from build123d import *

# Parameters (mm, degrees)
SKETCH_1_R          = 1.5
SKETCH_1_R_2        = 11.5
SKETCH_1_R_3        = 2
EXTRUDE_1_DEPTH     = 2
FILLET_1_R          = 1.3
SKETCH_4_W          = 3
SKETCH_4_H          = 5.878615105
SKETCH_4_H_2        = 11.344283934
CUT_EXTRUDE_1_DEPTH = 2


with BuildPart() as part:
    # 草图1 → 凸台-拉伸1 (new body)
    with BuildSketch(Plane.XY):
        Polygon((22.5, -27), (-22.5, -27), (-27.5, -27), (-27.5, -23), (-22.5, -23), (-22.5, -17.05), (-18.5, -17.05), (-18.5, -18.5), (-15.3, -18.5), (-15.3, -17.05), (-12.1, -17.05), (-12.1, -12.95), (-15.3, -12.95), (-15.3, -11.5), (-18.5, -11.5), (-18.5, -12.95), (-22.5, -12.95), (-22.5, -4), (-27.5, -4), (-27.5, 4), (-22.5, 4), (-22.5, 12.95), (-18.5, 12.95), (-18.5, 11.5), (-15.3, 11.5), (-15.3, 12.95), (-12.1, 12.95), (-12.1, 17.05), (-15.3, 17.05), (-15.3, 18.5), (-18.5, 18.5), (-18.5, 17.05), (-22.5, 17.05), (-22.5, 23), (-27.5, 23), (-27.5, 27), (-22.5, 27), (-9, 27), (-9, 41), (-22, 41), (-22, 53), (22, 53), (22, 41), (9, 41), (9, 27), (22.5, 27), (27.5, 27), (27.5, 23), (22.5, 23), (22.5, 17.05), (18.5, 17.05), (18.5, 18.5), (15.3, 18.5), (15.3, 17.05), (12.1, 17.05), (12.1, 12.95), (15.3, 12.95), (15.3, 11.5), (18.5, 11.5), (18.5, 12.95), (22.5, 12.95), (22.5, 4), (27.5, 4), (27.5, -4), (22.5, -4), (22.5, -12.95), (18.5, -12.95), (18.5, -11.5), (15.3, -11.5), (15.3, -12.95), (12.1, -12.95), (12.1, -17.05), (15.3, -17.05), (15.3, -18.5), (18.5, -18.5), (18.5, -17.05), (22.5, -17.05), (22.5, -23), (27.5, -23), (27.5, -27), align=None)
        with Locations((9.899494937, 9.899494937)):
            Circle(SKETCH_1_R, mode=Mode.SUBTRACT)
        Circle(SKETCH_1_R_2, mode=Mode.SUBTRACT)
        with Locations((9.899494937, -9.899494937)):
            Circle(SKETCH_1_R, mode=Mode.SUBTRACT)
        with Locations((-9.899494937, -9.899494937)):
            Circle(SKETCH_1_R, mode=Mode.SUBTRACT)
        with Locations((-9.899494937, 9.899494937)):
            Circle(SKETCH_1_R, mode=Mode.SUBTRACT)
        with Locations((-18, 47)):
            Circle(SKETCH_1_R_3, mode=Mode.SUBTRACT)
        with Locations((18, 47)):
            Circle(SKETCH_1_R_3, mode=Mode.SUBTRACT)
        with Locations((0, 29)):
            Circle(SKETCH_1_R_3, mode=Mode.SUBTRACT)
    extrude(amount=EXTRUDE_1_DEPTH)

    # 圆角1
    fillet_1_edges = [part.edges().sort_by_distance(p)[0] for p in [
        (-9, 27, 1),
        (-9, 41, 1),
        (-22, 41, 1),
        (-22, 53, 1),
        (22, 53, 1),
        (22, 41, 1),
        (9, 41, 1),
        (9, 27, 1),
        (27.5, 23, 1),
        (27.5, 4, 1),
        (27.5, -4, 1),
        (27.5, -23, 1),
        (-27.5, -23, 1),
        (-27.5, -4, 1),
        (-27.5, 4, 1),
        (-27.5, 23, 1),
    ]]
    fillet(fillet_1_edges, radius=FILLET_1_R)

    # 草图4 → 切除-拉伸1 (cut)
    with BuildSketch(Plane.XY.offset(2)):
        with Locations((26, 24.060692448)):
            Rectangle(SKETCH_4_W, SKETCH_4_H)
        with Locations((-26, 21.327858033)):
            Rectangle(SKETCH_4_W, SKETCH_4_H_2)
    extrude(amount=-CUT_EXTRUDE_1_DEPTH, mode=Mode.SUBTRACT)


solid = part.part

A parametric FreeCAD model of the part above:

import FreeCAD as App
import Part
import Sketcher
Q = App.Units.Quantity


def edges_at(feature, points):
    """Names of the edges that pass closest to the given points."""
    edges = feature.Shape.Edges
    near = lambda p: min(range(len(edges)), key=lambda i: edges[i].distToShape(Part.Vertex(*p))[0])
    return sorted({f"Edge{near(p) + 1}" for p in points})

doc = App.newDocument("Part")
body = doc.addObject("PartDesign::Body", "Body")

# Sketch on XY plane
sketch1 = body.newObject("Sketcher::SketchObject", "Sketch")
sketch1.AttachmentSupport = (doc.getObject("XY_Plane"), [""])
sketch1.MapMode = "FlatFace"
sketch1.addGeometry([
    Part.LineSegment(App.Vector(-27.5, -27, 0), App.Vector(27.5, -27, 0)),  # 0
    Part.LineSegment(App.Vector(27.5, -27, 0), App.Vector(27.5, -23, 0)),  # 1
    Part.LineSegment(App.Vector(27.5, -23, 0), App.Vector(22.5, -23, 0)),  # 2
    Part.LineSegment(App.Vector(22.5, -23, 0), App.Vector(22.5, -17.05, 0)),  # 3
    Part.LineSegment(App.Vector(22.5, -17.05, 0), App.Vector(18.5, -17.05, 0)),  # 4
    Part.LineSegment(App.Vector(18.5, -17.05, 0), App.Vector(18.5, -18.5, 0)),  # 5
    Part.LineSegment(App.Vector(18.5, -18.5, 0), App.Vector(15.3, -18.5, 0)),  # 6
    Part.LineSegment(App.Vector(15.3, -18.5, 0), App.Vector(15.3, -17.05, 0)),  # 7
    Part.LineSegment(App.Vector(15.3, -17.05, 0), App.Vector(12.1, -17.05, 0)),  # 8
    Part.LineSegment(App.Vector(12.1, -17.05, 0), App.Vector(12.1, -12.95, 0)),  # 9
    Part.LineSegment(App.Vector(12.1, -12.95, 0), App.Vector(15.3, -12.95, 0)),  # 10
    Part.LineSegment(App.Vector(15.3, -12.95, 0), App.Vector(15.3, -11.5, 0)),  # 11
    Part.LineSegment(App.Vector(15.3, -11.5, 0), App.Vector(18.5, -11.5, 0)),  # 12
    Part.LineSegment(App.Vector(18.5, -11.5, 0), App.Vector(18.5, -12.95, 0)),  # 13
    Part.LineSegment(App.Vector(18.5, -12.95, 0), App.Vector(22.5, -12.95, 0)),  # 14
    Part.LineSegment(App.Vector(22.5, -12.95, 0), App.Vector(22.5, -4, 0)),  # 15
    Part.LineSegment(App.Vector(22.5, -4, 0), App.Vector(27.5, -4, 0)),  # 16
    Part.LineSegment(App.Vector(27.5, -4, 0), App.Vector(27.5, 4, 0)),  # 17
    Part.LineSegment(App.Vector(27.5, 4, 0), App.Vector(22.5, 4, 0)),  # 18
    Part.LineSegment(App.Vector(22.5, 4, 0), App.Vector(22.5, 12.95, 0)),  # 19
    Part.LineSegment(App.Vector(22.5, 12.95, 0), App.Vector(18.5, 12.95, 0)),  # 20
    Part.LineSegment(App.Vector(18.5, 12.95, 0), App.Vector(18.5, 11.5, 0)),  # 21
    Part.LineSegment(App.Vector(18.5, 11.5, 0), App.Vector(15.3, 11.5, 0)),  # 22
    Part.LineSegment(App.Vector(15.3, 11.5, 0), App.Vector(15.3, 12.95, 0)),  # 23
    Part.LineSegment(App.Vector(15.3, 12.95, 0), App.Vector(12.1, 12.95, 0)),  # 24
    Part.LineSegment(App.Vector(12.1, 12.95, 0), App.Vector(12.1, 17.05, 0)),  # 25
    Part.LineSegment(App.Vector(12.1, 17.05, 0), App.Vector(15.3, 17.05, 0)),  # 26
    Part.LineSegment(App.Vector(15.3, 17.05, 0), App.Vector(15.3, 18.5, 0)),  # 27
    Part.LineSegment(App.Vector(15.3, 18.5, 0), App.Vector(18.5, 18.5, 0)),  # 28
    Part.LineSegment(App.Vector(18.5, 18.5, 0), App.Vector(18.5, 17.05, 0)),  # 29
    Part.LineSegment(App.Vector(18.5, 17.05, 0), App.Vector(22.5, 17.05, 0)),  # 30
    Part.LineSegment(App.Vector(22.5, 17.05, 0), App.Vector(22.5, 23, 0)),  # 31
    Part.LineSegment(App.Vector(22.5, 23, 0), App.Vector(27.5, 23, 0)),  # 32
    Part.LineSegment(App.Vector(27.5, 23, 0), App.Vector(27.5, 27, 0)),  # 33
    Part.LineSegment(App.Vector(27.5, 27, 0), App.Vector(9, 27, 0)),  # 34
    Part.LineSegment(App.Vector(9, 27, 0), App.Vector(9, 41, 0)),  # 35
    Part.LineSegment(App.Vector(9, 41, 0), App.Vector(22, 41, 0)),  # 36
    Part.LineSegment(App.Vector(22, 41, 0), App.Vector(22, 53, 0)),  # 37
    Part.LineSegment(App.Vector(22, 53, 0), App.Vector(-22, 53, 0)),  # 38
    Part.LineSegment(App.Vector(-22, 53, 0), App.Vector(-22, 41, 0)),  # 39
    Part.LineSegment(App.Vector(-22, 41, 0), App.Vector(-9, 41, 0)),  # 40
    Part.LineSegment(App.Vector(-9, 41, 0), App.Vector(-9, 27, 0)),  # 41
    Part.LineSegment(App.Vector(-9, 27, 0), App.Vector(-27.5, 27, 0)),  # 42
    Part.LineSegment(App.Vector(-27.5, 27, 0), App.Vector(-27.5, 23, 0)),  # 43
    Part.LineSegment(App.Vector(-27.5, 23, 0), App.Vector(-22.5, 23, 0)),  # 44
    Part.LineSegment(App.Vector(-22.5, 23, 0), App.Vector(-22.5, 17.05, 0)),  # 45
    Part.LineSegment(App.Vector(-22.5, 17.05, 0), App.Vector(-18.5, 17.05, 0)),  # 46
    Part.LineSegment(App.Vector(-18.5, 17.05, 0), App.Vector(-18.5, 18.5, 0)),  # 47
    Part.LineSegment(App.Vector(-18.5, 18.5, 0), App.Vector(-15.3, 18.5, 0)),  # 48
    Part.LineSegment(App.Vector(-15.3, 18.5, 0), App.Vector(-15.3, 17.05, 0)),  # 49
    Part.LineSegment(App.Vector(-15.3, 17.05, 0), App.Vector(-12.1, 17.05, 0)),  # 50
    Part.LineSegment(App.Vector(-12.1, 17.05, 0), App.Vector(-12.1, 12.95, 0)),  # 51
    Part.LineSegment(App.Vector(-12.1, 12.95, 0), App.Vector(-15.3, 12.95, 0)),  # 52
    Part.LineSegment(App.Vector(-15.3, 12.95, 0), App.Vector(-15.3, 11.5, 0)),  # 53
    Part.LineSegment(App.Vector(-15.3, 11.5, 0), App.Vector(-18.5, 11.5, 0)),  # 54
    Part.LineSegment(App.Vector(-18.5, 11.5, 0), App.Vector(-18.5, 12.95, 0)),  # 55
    Part.LineSegment(App.Vector(-18.5, 12.95, 0), App.Vector(-22.5, 12.95, 0)),  # 56
    Part.LineSegment(App.Vector(-22.5, 12.95, 0), App.Vector(-22.5, 4, 0)),  # 57
    Part.LineSegment(App.Vector(-22.5, 4, 0), App.Vector(-27.5, 4, 0)),  # 58
    Part.LineSegment(App.Vector(-27.5, 4, 0), App.Vector(-27.5, -4, 0)),  # 59
    Part.LineSegment(App.Vector(-27.5, -4, 0), App.Vector(-22.5, -4, 0)),  # 60
    Part.LineSegment(App.Vector(-22.5, -4, 0), App.Vector(-22.5, -12.95, 0)),  # 61
    Part.LineSegment(App.Vector(-22.5, -12.95, 0), App.Vector(-18.5, -12.95, 0)),  # 62
    Part.LineSegment(App.Vector(-18.5, -12.95, 0), App.Vector(-18.5, -11.5, 0)),  # 63
    Part.LineSegment(App.Vector(-18.5, -11.5, 0), App.Vector(-15.3, -11.5, 0)),  # 64
    Part.LineSegment(App.Vector(-15.3, -11.5, 0), App.Vector(-15.3, -12.95, 0)),  # 65
    Part.LineSegment(App.Vector(-15.3, -12.95, 0), App.Vector(-12.1, -12.95, 0)),  # 66
    Part.LineSegment(App.Vector(-12.1, -12.95, 0), App.Vector(-12.1, -17.05, 0)),  # 67
    Part.LineSegment(App.Vector(-12.1, -17.05, 0), App.Vector(-15.3, -17.05, 0)),  # 68
    Part.LineSegment(App.Vector(-15.3, -17.05, 0), App.Vector(-15.3, -18.5, 0)),  # 69
    Part.LineSegment(App.Vector(-15.3, -18.5, 0), App.Vector(-18.5, -18.5, 0)),  # 70
    Part.LineSegment(App.Vector(-18.5, -18.5, 0), App.Vector(-18.5, -17.05, 0)),  # 71
    Part.LineSegment(App.Vector(-18.5, -17.05, 0), App.Vector(-22.5, -17.05, 0)),  # 72
    Part.LineSegment(App.Vector(-22.5, -17.05, 0), App.Vector(-22.5, -23, 0)),  # 73
    Part.LineSegment(App.Vector(-22.5, -23, 0), App.Vector(-27.5, -23, 0)),  # 74
    Part.LineSegment(App.Vector(-27.5, -23, 0), App.Vector(-27.5, -27, 0)),  # 75
    Part.Circle(App.Vector(9.899495, -9.899495, 0), App.Vector(0, 0, 1), 1.5),  # 76
    Part.Circle(App.Vector(9.899495, 9.899495, 0), App.Vector(0, 0, 1), 1.5),  # 77
    Part.Circle(App.Vector(-9.899495, -9.899495, 0), App.Vector(0, 0, 1), 1.5),  # 78
    Part.Circle(App.Vector(0, 0, 0), App.Vector(0, 0, 1), 11.5),  # 79
    Part.Circle(App.Vector(-9.899495, 9.899495, 0), App.Vector(0, 0, 1), 1.5),  # 80
    Part.Circle(App.Vector(18, 47, 0), App.Vector(0, 0, 1), 2),  # 81
    Part.Circle(App.Vector(0, 29, 0), App.Vector(0, 0, 1), 2),  # 82
    Part.Circle(App.Vector(-18, 47, 0), App.Vector(0, 0, 1), 2),  # 83
], False)
sketch1.addConstraint([
    Sketcher.Constraint("Coincident", 0, 2, 1, 1),
    Sketcher.Constraint("Coincident", 1, 2, 2, 1),
    Sketcher.Constraint("Coincident", 2, 2, 3, 1),
    Sketcher.Constraint("Coincident", 3, 2, 4, 1),
    Sketcher.Constraint("Coincident", 4, 2, 5, 1),
    Sketcher.Constraint("Coincident", 5, 2, 6, 1),
    Sketcher.Constraint("Coincident", 6, 2, 7, 1),
    Sketcher.Constraint("Coincident", 7, 2, 8, 1),
    Sketcher.Constraint("Coincident", 8, 2, 9, 1),
    Sketcher.Constraint("Coincident", 9, 2, 10, 1),
    Sketcher.Constraint("Coincident", 10, 2, 11, 1),
    Sketcher.Constraint("Coincident", 11, 2, 12, 1),
    Sketcher.Constraint("Coincident", 12, 2, 13, 1),
    Sketcher.Constraint("Coincident", 13, 2, 14, 1),
    Sketcher.Constraint("Coincident", 14, 2, 15, 1),
    Sketcher.Constraint("Coincident", 15, 2, 16, 1),
    Sketcher.Constraint("Coincident", 16, 2, 17, 1),
    Sketcher.Constraint("Coincident", 17, 2, 18, 1),
    Sketcher.Constraint("Coincident", 18, 2, 19, 1),
    Sketcher.Constraint("Coincident", 19, 2, 20, 1),
    Sketcher.Constraint("Coincident", 20, 2, 21, 1),
    Sketcher.Constraint("Coincident", 21, 2, 22, 1),
    Sketcher.Constraint("Coincident", 22, 2, 23, 1),
    Sketcher.Constraint("Coincident", 23, 2, 24, 1),
    Sketcher.Constraint("Coincident", 24, 2, 25, 1),
    Sketcher.Constraint("Coincident", 25, 2, 26, 1),
    Sketcher.Constraint("Coincident", 26, 2, 27, 1),
    Sketcher.Constraint("Coincident", 27, 2, 28, 1),
    Sketcher.Constraint("Coincident", 28, 2, 29, 1),
    Sketcher.Constraint("Coincident", 29, 2, 30, 1),
    Sketcher.Constraint("Coincident", 30, 2, 31, 1),
    Sketcher.Constraint("Coincident", 31, 2, 32, 1),
    Sketcher.Constraint("Coincident", 32, 2, 33, 1),
    Sketcher.Constraint("Coincident", 33, 2, 34, 1),
    Sketcher.Constraint("Coincident", 34, 2, 35, 1),
    Sketcher.Constraint("Coincident", 35, 2, 36, 1),
    Sketcher.Constraint("Coincident", 36, 2, 37, 1),
    Sketcher.Constraint("Coincident", 37, 2, 38, 1),
    Sketcher.Constraint("Coincident", 38, 2, 39, 1),
    Sketcher.Constraint("Coincident", 39, 2, 40, 1),
    Sketcher.Constraint("Coincident", 40, 2, 41, 1),
    Sketcher.Constraint("Coincident", 41, 2, 42, 1),
    Sketcher.Constraint("Coincident", 42, 2, 43, 1),
    Sketcher.Constraint("Coincident", 43, 2, 44, 1),
    Sketcher.Constraint("Coincident", 44, 2, 45, 1),
    Sketcher.Constraint("Coincident", 45, 2, 46, 1),
    Sketcher.Constraint("Coincident", 46, 2, 47, 1),
    Sketcher.Constraint("Coincident", 47, 2, 48, 1),
    Sketcher.Constraint("Coincident", 48, 2, 49, 1),
    Sketcher.Constraint("Coincident", 49, 2, 50, 1),
    Sketcher.Constraint("Coincident", 50, 2, 51, 1),
    Sketcher.Constraint("Coincident", 51, 2, 52, 1),
    Sketcher.Constraint("Coincident", 52, 2, 53, 1),
    Sketcher.Constraint("Coincident", 53, 2, 54, 1),
    Sketcher.Constraint("Coincident", 54, 2, 55, 1),
    Sketcher.Constraint("Coincident", 55, 2, 56, 1),
    Sketcher.Constraint("Coincident", 56, 2, 57, 1),
    Sketcher.Constraint("Coincident", 57, 2, 58, 1),
    Sketcher.Constraint("Coincident", 58, 2, 59, 1),
    Sketcher.Constraint("Coincident", 59, 2, 60, 1),
    Sketcher.Constraint("Coincident", 60, 2, 61, 1),
    Sketcher.Constraint("Coincident", 61, 2, 62, 1),
    Sketcher.Constraint("Coincident", 62, 2, 63, 1),
    Sketcher.Constraint("Coincident", 63, 2, 64, 1),
    Sketcher.Constraint("Coincident", 64, 2, 65, 1),
    Sketcher.Constraint("Coincident", 65, 2, 66, 1),
    Sketcher.Constraint("Coincident", 66, 2, 67, 1),
    Sketcher.Constraint("Coincident", 67, 2, 68, 1),
    Sketcher.Constraint("Coincident", 68, 2, 69, 1),
    Sketcher.Constraint("Coincident", 69, 2, 70, 1),
    Sketcher.Constraint("Coincident", 70, 2, 71, 1),
    Sketcher.Constraint("Coincident", 71, 2, 72, 1),
    Sketcher.Constraint("Coincident", 72, 2, 73, 1),
    Sketcher.Constraint("Coincident", 73, 2, 74, 1),
    Sketcher.Constraint("Coincident", 74, 2, 75, 1),
    Sketcher.Constraint("Coincident", 75, 2, 0, 1),
    Sketcher.Constraint("Horizontal", 0),
    Sketcher.Constraint("Vertical", 1),
    Sketcher.Constraint("Horizontal", 2),
    Sketcher.Constraint("Vertical", 3),
    Sketcher.Constraint("Horizontal", 4),
    Sketcher.Constraint("Vertical", 5),
    Sketcher.Constraint("Horizontal", 6),
    Sketcher.Constraint("Vertical", 7),
    Sketcher.Constraint("Horizontal", 8),
    Sketcher.Constraint("Vertical", 9),
    Sketcher.Constraint("Horizontal", 10),
    Sketcher.Constraint("Vertical", 11),
    Sketcher.Constraint("Horizontal", 12),
    Sketcher.Constraint("Vertical", 13),
    Sketcher.Constraint("Horizontal", 14),
    Sketcher.Constraint("Vertical", 15),
    Sketcher.Constraint("Horizontal", 16),
    Sketcher.Constraint("Vertical", 17),
    Sketcher.Constraint("Horizontal", 18),
    Sketcher.Constraint("Vertical", 19),
    Sketcher.Constraint("Horizontal", 20),
    Sketcher.Constraint("Vertical", 21),
    Sketcher.Constraint("Horizontal", 22),
    Sketcher.Constraint("Vertical", 23),
    Sketcher.Constraint("Horizontal", 24),
    Sketcher.Constraint("Vertical", 25),
    Sketcher.Constraint("Horizontal", 26),
    Sketcher.Constraint("Vertical", 27),
    Sketcher.Constraint("Horizontal", 28),
    Sketcher.Constraint("Vertical", 29),
    Sketcher.Constraint("Horizontal", 30),
    Sketcher.Constraint("Vertical", 31),
    Sketcher.Constraint("Horizontal", 32),
    Sketcher.Constraint("Vertical", 33),
    Sketcher.Constraint("Horizontal", 34),
    Sketcher.Constraint("Vertical", 35),
    Sketcher.Constraint("Horizontal", 36),
    Sketcher.Constraint("Vertical", 37),
    Sketcher.Constraint("Horizontal", 38),
    Sketcher.Constraint("Vertical", 39),
    Sketcher.Constraint("Horizontal", 40),
    Sketcher.Constraint("Vertical", 41),
    Sketcher.Constraint("Horizontal", 42),
    Sketcher.Constraint("Vertical", 43),
    Sketcher.Constraint("Horizontal", 44),
    Sketcher.Constraint("Vertical", 45),
    Sketcher.Constraint("Horizontal", 46),
    Sketcher.Constraint("Vertical", 47),
    Sketcher.Constraint("Horizontal", 48),
    Sketcher.Constraint("Vertical", 49),
    Sketcher.Constraint("Horizontal", 50),
    Sketcher.Constraint("Vertical", 51),
    Sketcher.Constraint("Horizontal", 52),
    Sketcher.Constraint("Vertical", 53),
    Sketcher.Constraint("Horizontal", 54),
    Sketcher.Constraint("Vertical", 55),
    Sketcher.Constraint("Horizontal", 56),
    Sketcher.Constraint("Vertical", 57),
    Sketcher.Constraint("Horizontal", 58),
    Sketcher.Constraint("Vertical", 59),
    Sketcher.Constraint("Horizontal", 60),
    Sketcher.Constraint("Vertical", 61),
    Sketcher.Constraint("Horizontal", 62),
    Sketcher.Constraint("Vertical", 63),
    Sketcher.Constraint("Horizontal", 64),
    Sketcher.Constraint("Vertical", 65),
    Sketcher.Constraint("Horizontal", 66),
    Sketcher.Constraint("Vertical", 67),
    Sketcher.Constraint("Horizontal", 68),
    Sketcher.Constraint("Vertical", 69),
    Sketcher.Constraint("Horizontal", 70),
    Sketcher.Constraint("Vertical", 71),
    Sketcher.Constraint("Horizontal", 72),
    Sketcher.Constraint("Vertical", 73),
    Sketcher.Constraint("Horizontal", 74),
    Sketcher.Constraint("Vertical", 75),
    Sketcher.Constraint("Coincident", 79, 3, -1, 1),
    Sketcher.Constraint("Equal", 76, 77),
    Sketcher.Constraint("Equal", 77, 78),
    Sketcher.Constraint("Equal", 78, 80),
    Sketcher.Constraint("Equal", 81, 82),
    Sketcher.Constraint("Equal", 82, 83),
    Sketcher.Constraint("Symmetric", 77, 3, 78, 3, -1, 1),
    Sketcher.Constraint("Symmetric", 76, 3, 80, 3, -1, 1),
    Sketcher.Constraint("Symmetric", 0, 2, 42, 2, -1, 1),
    Sketcher.Constraint("Symmetric", 2, 2, 44, 2, -1, 1),
    Sketcher.Constraint("Symmetric", 4, 2, 46, 2, -1, 1),
    Sketcher.Constraint("Symmetric", 6, 2, 48, 2, -1, 1),
    Sketcher.Constraint("Symmetric", 8, 2, 50, 2, -1, 1),
    Sketcher.Constraint("Symmetric", 10, 2, 52, 2, -1, 1),
    Sketcher.Constraint("Symmetric", 12, 2, 54, 2, -1, 1),
    Sketcher.Constraint("Symmetric", 14, 2, 56, 2, -1, 1),
    Sketcher.Constraint("Symmetric", 16, 2, 58, 2, -1, 1),
    Sketcher.Constraint("Symmetric", 18, 2, 60, 2, -1, 1),
    Sketcher.Constraint("Symmetric", 20, 2, 62, 2, -1, 1),
    Sketcher.Constraint("Symmetric", 22, 2, 64, 2, -1, 1),
    Sketcher.Constraint("Symmetric", 24, 2, 66, 2, -1, 1),
    Sketcher.Constraint("Symmetric", 26, 2, 68, 2, -1, 1),
    Sketcher.Constraint("Symmetric", 28, 2, 70, 2, -1, 1),
    Sketcher.Constraint("Symmetric", 30, 2, 72, 2, -1, 1),
    Sketcher.Constraint("Symmetric", 32, 2, 74, 2, -1, 1),
    Sketcher.Constraint("Symmetric", 76, 3, 78, 3, -2),
    Sketcher.Constraint("Symmetric", 81, 3, 83, 3, -2),
    Sketcher.Constraint("Symmetric", 36, 2, 39, 2, -2),
    Sketcher.Constraint("Symmetric", 34, 2, 41, 2, -2),
    Sketcher.Constraint("Symmetric", 32, 2, 43, 2, -2),
    Sketcher.Constraint("Symmetric", 30, 2, 45, 2, -2),
    Sketcher.Constraint("Symmetric", 28, 2, 47, 2, -2),
    Sketcher.Constraint("Symmetric", 26, 2, 49, 2, -2),
    Sketcher.Constraint("Symmetric", 24, 2, 51, 2, -2),
    Sketcher.Constraint("Symmetric", 22, 2, 53, 2, -2),
    Sketcher.Constraint("Symmetric", 20, 2, 55, 2, -2),
    Sketcher.Constraint("Symmetric", 18, 2, 57, 2, -2),
    Sketcher.Constraint("PointOnObject", 82, 3, -2),
    Sketcher.Constraint("Horizontal", 4, 2, 7, 2),
    Sketcher.Constraint("Horizontal", 10, 2, 13, 2),
    Sketcher.Constraint("Vertical", 7, 2, 10, 2),
    Sketcher.Constraint("Vertical", 5, 2, 12, 2),
    Sketcher.Constraint("Vertical", 3, 2, 14, 2),
    Sketcher.Constraint("Vertical", 1, 2, 16, 2),
    Sketcher.Constraint("Equal", 6, 8),
    Sketcher.Constraint("Equal", 72, 1),
    Sketcher.Constraint("Equal", 7, 11),
    Sketcher.Constraint("Diameter", 76, Q("3 mm")),
    Sketcher.Constraint("Diameter", 79, Q("23 mm")),
    Sketcher.Constraint("Diameter", 81, Q("4 mm")),
    Sketcher.Constraint("DistanceX", 0, 1, 0, 2, Q("55 mm")),
    Sketcher.Constraint("DistanceX", 2, 2, 2, 1, Q("5 mm")),
    Sketcher.Constraint("DistanceX", 4, 2, 4, 1, Q("4 mm")),
    Sketcher.Constraint("DistanceX", 36, 1, 36, 2, Q("13 mm")),
    Sketcher.Constraint("DistanceX", 38, 2, 38, 1, Q("44 mm")),
    Sketcher.Constraint("DistanceY", 17, 1, 17, 2, Q("8 mm")),
    Sketcher.Constraint("DistanceY", 35, 1, 35, 2, Q("14 mm")),
    Sketcher.Constraint("DistanceY", 37, 1, 37, 2, Q("12 mm")),
    Sketcher.Constraint("DistanceX", 6, 2, 6, 1, Q("3.2 mm")),
    Sketcher.Constraint("DistanceY", 9, 1, 9, 2, Q("4.1 mm")),
    Sketcher.Constraint("DistanceX", -1, 1, 81, 3, Q("18 mm")),
    Sketcher.Constraint("DistanceY", -1, 1, 81, 3, Q("47 mm")),
    Sketcher.Constraint("DistanceY", -1, 1, 82, 3, Q("29 mm")),
    Sketcher.Constraint("DistanceY", 0, 2, -1, 1, Q("27 mm")),
    Sketcher.Constraint("DistanceY", 3, 1, 3, 2, Q("5.95 mm")),
    Sketcher.Constraint("DistanceY", 5, 2, 5, 1, Q("1.45 mm")),
    Sketcher.Constraint("DistanceX", -1, 1, 76, 3, Q("9.899495 mm")),
    Sketcher.Constraint("DistanceY", 76, 3, -1, 1, Q("9.899495 mm")),
])
pad1 = body.newObject("PartDesign::Pad", "Pad")
pad1.Profile = sketch1
pad1.Length = 2
doc.recompute()

fillet = body.newObject("PartDesign::Fillet", "Fillet")
fillet.Base = (pad1, edges_at(pad1, [
    (-9, 27, 1),
    (-9, 41, 1),
    (-22, 41, 1),
    (-22, 53, 1),
    (22, 53, 1),
    (22, 41, 1),
    (9, 41, 1),
    (9, 27, 1),
    (27.5, 23, 1),
    (27.5, 4, 1),
    (27.5, -4, 1),
    (27.5, -23, 1),
    (-27.5, -23, 1),
    (-27.5, -4, 1),
    (-27.5, 4, 1),
    (-27.5, 23, 1),
]))
fillet.Radius = 1.3

# Sketch on XY plane
sketch2 = body.newObject("Sketcher::SketchObject", "Sketch001")
sketch2.AttachmentSupport = (doc.getObject("XY_Plane"), [""])
sketch2.MapMode = "FlatFace"
sketch2.AttachmentOffset = App.Placement(App.Vector(0, 0, 2), App.Rotation())
sketch2.addGeometry([
    Part.LineSegment(App.Vector(24.5, 27, 0), App.Vector(24.5, 21.121385, 0)),  # 0
    Part.LineSegment(App.Vector(24.5, 21.121385, 0), App.Vector(27.5, 21.121385, 0)),  # 1
    Part.LineSegment(App.Vector(27.5, 21.121385, 0), App.Vector(27.5, 27, 0)),  # 2
    Part.LineSegment(App.Vector(27.5, 27, 0), App.Vector(24.5, 27, 0)),  # 3
    Part.LineSegment(App.Vector(-27.5, 27, 0), App.Vector(-27.5, 15.655716, 0)),  # 4
    Part.LineSegment(App.Vector(-27.5, 15.655716, 0), App.Vector(-24.5, 15.655716, 0)),  # 5
    Part.LineSegment(App.Vector(-24.5, 15.655716, 0), App.Vector(-24.5, 27, 0)),  # 6
    Part.LineSegment(App.Vector(-24.5, 27, 0), App.Vector(-27.5, 27, 0)),  # 7
], False)
sketch2.addConstraint([
    Sketcher.Constraint("Coincident", 0, 2, 1, 1),
    Sketcher.Constraint("Coincident", 1, 2, 2, 1),
    Sketcher.Constraint("Coincident", 2, 2, 3, 1),
    Sketcher.Constraint("Coincident", 3, 2, 0, 1),
    Sketcher.Constraint("Coincident", 4, 2, 5, 1),
    Sketcher.Constraint("Coincident", 5, 2, 6, 1),
    Sketcher.Constraint("Coincident", 6, 2, 7, 1),
    Sketcher.Constraint("Coincident", 7, 2, 4, 1),
    Sketcher.Constraint("Vertical", 0),
    Sketcher.Constraint("Horizontal", 1),
    Sketcher.Constraint("Vertical", 2),
    Sketcher.Constraint("Horizontal", 3),
    Sketcher.Constraint("Vertical", 4),
    Sketcher.Constraint("Horizontal", 5),
    Sketcher.Constraint("Vertical", 6),
    Sketcher.Constraint("Horizontal", 7),
    Sketcher.Constraint("Symmetric", 3, 2, 6, 2, -2),
    Sketcher.Constraint("Equal", 3, 5),
    Sketcher.Constraint("DistanceX", 1, 1, 1, 2, Q("3 mm")),
    Sketcher.Constraint("DistanceY", -1, 1, 2, 2, Q("27 mm")),
    Sketcher.Constraint("DistanceX", 4, 2, 0, 2, Q("52 mm")),
    Sketcher.Constraint("DistanceY", 0, 2, 0, 1, Q("5.878615 mm")),
    Sketcher.Constraint("DistanceY", 4, 2, 4, 1, Q("11.344284 mm")),
])
pocket1 = body.newObject("PartDesign::Pocket", "Pocket")
pocket1.Profile = sketch2
pocket1.Length = 2

doc.recompute()
